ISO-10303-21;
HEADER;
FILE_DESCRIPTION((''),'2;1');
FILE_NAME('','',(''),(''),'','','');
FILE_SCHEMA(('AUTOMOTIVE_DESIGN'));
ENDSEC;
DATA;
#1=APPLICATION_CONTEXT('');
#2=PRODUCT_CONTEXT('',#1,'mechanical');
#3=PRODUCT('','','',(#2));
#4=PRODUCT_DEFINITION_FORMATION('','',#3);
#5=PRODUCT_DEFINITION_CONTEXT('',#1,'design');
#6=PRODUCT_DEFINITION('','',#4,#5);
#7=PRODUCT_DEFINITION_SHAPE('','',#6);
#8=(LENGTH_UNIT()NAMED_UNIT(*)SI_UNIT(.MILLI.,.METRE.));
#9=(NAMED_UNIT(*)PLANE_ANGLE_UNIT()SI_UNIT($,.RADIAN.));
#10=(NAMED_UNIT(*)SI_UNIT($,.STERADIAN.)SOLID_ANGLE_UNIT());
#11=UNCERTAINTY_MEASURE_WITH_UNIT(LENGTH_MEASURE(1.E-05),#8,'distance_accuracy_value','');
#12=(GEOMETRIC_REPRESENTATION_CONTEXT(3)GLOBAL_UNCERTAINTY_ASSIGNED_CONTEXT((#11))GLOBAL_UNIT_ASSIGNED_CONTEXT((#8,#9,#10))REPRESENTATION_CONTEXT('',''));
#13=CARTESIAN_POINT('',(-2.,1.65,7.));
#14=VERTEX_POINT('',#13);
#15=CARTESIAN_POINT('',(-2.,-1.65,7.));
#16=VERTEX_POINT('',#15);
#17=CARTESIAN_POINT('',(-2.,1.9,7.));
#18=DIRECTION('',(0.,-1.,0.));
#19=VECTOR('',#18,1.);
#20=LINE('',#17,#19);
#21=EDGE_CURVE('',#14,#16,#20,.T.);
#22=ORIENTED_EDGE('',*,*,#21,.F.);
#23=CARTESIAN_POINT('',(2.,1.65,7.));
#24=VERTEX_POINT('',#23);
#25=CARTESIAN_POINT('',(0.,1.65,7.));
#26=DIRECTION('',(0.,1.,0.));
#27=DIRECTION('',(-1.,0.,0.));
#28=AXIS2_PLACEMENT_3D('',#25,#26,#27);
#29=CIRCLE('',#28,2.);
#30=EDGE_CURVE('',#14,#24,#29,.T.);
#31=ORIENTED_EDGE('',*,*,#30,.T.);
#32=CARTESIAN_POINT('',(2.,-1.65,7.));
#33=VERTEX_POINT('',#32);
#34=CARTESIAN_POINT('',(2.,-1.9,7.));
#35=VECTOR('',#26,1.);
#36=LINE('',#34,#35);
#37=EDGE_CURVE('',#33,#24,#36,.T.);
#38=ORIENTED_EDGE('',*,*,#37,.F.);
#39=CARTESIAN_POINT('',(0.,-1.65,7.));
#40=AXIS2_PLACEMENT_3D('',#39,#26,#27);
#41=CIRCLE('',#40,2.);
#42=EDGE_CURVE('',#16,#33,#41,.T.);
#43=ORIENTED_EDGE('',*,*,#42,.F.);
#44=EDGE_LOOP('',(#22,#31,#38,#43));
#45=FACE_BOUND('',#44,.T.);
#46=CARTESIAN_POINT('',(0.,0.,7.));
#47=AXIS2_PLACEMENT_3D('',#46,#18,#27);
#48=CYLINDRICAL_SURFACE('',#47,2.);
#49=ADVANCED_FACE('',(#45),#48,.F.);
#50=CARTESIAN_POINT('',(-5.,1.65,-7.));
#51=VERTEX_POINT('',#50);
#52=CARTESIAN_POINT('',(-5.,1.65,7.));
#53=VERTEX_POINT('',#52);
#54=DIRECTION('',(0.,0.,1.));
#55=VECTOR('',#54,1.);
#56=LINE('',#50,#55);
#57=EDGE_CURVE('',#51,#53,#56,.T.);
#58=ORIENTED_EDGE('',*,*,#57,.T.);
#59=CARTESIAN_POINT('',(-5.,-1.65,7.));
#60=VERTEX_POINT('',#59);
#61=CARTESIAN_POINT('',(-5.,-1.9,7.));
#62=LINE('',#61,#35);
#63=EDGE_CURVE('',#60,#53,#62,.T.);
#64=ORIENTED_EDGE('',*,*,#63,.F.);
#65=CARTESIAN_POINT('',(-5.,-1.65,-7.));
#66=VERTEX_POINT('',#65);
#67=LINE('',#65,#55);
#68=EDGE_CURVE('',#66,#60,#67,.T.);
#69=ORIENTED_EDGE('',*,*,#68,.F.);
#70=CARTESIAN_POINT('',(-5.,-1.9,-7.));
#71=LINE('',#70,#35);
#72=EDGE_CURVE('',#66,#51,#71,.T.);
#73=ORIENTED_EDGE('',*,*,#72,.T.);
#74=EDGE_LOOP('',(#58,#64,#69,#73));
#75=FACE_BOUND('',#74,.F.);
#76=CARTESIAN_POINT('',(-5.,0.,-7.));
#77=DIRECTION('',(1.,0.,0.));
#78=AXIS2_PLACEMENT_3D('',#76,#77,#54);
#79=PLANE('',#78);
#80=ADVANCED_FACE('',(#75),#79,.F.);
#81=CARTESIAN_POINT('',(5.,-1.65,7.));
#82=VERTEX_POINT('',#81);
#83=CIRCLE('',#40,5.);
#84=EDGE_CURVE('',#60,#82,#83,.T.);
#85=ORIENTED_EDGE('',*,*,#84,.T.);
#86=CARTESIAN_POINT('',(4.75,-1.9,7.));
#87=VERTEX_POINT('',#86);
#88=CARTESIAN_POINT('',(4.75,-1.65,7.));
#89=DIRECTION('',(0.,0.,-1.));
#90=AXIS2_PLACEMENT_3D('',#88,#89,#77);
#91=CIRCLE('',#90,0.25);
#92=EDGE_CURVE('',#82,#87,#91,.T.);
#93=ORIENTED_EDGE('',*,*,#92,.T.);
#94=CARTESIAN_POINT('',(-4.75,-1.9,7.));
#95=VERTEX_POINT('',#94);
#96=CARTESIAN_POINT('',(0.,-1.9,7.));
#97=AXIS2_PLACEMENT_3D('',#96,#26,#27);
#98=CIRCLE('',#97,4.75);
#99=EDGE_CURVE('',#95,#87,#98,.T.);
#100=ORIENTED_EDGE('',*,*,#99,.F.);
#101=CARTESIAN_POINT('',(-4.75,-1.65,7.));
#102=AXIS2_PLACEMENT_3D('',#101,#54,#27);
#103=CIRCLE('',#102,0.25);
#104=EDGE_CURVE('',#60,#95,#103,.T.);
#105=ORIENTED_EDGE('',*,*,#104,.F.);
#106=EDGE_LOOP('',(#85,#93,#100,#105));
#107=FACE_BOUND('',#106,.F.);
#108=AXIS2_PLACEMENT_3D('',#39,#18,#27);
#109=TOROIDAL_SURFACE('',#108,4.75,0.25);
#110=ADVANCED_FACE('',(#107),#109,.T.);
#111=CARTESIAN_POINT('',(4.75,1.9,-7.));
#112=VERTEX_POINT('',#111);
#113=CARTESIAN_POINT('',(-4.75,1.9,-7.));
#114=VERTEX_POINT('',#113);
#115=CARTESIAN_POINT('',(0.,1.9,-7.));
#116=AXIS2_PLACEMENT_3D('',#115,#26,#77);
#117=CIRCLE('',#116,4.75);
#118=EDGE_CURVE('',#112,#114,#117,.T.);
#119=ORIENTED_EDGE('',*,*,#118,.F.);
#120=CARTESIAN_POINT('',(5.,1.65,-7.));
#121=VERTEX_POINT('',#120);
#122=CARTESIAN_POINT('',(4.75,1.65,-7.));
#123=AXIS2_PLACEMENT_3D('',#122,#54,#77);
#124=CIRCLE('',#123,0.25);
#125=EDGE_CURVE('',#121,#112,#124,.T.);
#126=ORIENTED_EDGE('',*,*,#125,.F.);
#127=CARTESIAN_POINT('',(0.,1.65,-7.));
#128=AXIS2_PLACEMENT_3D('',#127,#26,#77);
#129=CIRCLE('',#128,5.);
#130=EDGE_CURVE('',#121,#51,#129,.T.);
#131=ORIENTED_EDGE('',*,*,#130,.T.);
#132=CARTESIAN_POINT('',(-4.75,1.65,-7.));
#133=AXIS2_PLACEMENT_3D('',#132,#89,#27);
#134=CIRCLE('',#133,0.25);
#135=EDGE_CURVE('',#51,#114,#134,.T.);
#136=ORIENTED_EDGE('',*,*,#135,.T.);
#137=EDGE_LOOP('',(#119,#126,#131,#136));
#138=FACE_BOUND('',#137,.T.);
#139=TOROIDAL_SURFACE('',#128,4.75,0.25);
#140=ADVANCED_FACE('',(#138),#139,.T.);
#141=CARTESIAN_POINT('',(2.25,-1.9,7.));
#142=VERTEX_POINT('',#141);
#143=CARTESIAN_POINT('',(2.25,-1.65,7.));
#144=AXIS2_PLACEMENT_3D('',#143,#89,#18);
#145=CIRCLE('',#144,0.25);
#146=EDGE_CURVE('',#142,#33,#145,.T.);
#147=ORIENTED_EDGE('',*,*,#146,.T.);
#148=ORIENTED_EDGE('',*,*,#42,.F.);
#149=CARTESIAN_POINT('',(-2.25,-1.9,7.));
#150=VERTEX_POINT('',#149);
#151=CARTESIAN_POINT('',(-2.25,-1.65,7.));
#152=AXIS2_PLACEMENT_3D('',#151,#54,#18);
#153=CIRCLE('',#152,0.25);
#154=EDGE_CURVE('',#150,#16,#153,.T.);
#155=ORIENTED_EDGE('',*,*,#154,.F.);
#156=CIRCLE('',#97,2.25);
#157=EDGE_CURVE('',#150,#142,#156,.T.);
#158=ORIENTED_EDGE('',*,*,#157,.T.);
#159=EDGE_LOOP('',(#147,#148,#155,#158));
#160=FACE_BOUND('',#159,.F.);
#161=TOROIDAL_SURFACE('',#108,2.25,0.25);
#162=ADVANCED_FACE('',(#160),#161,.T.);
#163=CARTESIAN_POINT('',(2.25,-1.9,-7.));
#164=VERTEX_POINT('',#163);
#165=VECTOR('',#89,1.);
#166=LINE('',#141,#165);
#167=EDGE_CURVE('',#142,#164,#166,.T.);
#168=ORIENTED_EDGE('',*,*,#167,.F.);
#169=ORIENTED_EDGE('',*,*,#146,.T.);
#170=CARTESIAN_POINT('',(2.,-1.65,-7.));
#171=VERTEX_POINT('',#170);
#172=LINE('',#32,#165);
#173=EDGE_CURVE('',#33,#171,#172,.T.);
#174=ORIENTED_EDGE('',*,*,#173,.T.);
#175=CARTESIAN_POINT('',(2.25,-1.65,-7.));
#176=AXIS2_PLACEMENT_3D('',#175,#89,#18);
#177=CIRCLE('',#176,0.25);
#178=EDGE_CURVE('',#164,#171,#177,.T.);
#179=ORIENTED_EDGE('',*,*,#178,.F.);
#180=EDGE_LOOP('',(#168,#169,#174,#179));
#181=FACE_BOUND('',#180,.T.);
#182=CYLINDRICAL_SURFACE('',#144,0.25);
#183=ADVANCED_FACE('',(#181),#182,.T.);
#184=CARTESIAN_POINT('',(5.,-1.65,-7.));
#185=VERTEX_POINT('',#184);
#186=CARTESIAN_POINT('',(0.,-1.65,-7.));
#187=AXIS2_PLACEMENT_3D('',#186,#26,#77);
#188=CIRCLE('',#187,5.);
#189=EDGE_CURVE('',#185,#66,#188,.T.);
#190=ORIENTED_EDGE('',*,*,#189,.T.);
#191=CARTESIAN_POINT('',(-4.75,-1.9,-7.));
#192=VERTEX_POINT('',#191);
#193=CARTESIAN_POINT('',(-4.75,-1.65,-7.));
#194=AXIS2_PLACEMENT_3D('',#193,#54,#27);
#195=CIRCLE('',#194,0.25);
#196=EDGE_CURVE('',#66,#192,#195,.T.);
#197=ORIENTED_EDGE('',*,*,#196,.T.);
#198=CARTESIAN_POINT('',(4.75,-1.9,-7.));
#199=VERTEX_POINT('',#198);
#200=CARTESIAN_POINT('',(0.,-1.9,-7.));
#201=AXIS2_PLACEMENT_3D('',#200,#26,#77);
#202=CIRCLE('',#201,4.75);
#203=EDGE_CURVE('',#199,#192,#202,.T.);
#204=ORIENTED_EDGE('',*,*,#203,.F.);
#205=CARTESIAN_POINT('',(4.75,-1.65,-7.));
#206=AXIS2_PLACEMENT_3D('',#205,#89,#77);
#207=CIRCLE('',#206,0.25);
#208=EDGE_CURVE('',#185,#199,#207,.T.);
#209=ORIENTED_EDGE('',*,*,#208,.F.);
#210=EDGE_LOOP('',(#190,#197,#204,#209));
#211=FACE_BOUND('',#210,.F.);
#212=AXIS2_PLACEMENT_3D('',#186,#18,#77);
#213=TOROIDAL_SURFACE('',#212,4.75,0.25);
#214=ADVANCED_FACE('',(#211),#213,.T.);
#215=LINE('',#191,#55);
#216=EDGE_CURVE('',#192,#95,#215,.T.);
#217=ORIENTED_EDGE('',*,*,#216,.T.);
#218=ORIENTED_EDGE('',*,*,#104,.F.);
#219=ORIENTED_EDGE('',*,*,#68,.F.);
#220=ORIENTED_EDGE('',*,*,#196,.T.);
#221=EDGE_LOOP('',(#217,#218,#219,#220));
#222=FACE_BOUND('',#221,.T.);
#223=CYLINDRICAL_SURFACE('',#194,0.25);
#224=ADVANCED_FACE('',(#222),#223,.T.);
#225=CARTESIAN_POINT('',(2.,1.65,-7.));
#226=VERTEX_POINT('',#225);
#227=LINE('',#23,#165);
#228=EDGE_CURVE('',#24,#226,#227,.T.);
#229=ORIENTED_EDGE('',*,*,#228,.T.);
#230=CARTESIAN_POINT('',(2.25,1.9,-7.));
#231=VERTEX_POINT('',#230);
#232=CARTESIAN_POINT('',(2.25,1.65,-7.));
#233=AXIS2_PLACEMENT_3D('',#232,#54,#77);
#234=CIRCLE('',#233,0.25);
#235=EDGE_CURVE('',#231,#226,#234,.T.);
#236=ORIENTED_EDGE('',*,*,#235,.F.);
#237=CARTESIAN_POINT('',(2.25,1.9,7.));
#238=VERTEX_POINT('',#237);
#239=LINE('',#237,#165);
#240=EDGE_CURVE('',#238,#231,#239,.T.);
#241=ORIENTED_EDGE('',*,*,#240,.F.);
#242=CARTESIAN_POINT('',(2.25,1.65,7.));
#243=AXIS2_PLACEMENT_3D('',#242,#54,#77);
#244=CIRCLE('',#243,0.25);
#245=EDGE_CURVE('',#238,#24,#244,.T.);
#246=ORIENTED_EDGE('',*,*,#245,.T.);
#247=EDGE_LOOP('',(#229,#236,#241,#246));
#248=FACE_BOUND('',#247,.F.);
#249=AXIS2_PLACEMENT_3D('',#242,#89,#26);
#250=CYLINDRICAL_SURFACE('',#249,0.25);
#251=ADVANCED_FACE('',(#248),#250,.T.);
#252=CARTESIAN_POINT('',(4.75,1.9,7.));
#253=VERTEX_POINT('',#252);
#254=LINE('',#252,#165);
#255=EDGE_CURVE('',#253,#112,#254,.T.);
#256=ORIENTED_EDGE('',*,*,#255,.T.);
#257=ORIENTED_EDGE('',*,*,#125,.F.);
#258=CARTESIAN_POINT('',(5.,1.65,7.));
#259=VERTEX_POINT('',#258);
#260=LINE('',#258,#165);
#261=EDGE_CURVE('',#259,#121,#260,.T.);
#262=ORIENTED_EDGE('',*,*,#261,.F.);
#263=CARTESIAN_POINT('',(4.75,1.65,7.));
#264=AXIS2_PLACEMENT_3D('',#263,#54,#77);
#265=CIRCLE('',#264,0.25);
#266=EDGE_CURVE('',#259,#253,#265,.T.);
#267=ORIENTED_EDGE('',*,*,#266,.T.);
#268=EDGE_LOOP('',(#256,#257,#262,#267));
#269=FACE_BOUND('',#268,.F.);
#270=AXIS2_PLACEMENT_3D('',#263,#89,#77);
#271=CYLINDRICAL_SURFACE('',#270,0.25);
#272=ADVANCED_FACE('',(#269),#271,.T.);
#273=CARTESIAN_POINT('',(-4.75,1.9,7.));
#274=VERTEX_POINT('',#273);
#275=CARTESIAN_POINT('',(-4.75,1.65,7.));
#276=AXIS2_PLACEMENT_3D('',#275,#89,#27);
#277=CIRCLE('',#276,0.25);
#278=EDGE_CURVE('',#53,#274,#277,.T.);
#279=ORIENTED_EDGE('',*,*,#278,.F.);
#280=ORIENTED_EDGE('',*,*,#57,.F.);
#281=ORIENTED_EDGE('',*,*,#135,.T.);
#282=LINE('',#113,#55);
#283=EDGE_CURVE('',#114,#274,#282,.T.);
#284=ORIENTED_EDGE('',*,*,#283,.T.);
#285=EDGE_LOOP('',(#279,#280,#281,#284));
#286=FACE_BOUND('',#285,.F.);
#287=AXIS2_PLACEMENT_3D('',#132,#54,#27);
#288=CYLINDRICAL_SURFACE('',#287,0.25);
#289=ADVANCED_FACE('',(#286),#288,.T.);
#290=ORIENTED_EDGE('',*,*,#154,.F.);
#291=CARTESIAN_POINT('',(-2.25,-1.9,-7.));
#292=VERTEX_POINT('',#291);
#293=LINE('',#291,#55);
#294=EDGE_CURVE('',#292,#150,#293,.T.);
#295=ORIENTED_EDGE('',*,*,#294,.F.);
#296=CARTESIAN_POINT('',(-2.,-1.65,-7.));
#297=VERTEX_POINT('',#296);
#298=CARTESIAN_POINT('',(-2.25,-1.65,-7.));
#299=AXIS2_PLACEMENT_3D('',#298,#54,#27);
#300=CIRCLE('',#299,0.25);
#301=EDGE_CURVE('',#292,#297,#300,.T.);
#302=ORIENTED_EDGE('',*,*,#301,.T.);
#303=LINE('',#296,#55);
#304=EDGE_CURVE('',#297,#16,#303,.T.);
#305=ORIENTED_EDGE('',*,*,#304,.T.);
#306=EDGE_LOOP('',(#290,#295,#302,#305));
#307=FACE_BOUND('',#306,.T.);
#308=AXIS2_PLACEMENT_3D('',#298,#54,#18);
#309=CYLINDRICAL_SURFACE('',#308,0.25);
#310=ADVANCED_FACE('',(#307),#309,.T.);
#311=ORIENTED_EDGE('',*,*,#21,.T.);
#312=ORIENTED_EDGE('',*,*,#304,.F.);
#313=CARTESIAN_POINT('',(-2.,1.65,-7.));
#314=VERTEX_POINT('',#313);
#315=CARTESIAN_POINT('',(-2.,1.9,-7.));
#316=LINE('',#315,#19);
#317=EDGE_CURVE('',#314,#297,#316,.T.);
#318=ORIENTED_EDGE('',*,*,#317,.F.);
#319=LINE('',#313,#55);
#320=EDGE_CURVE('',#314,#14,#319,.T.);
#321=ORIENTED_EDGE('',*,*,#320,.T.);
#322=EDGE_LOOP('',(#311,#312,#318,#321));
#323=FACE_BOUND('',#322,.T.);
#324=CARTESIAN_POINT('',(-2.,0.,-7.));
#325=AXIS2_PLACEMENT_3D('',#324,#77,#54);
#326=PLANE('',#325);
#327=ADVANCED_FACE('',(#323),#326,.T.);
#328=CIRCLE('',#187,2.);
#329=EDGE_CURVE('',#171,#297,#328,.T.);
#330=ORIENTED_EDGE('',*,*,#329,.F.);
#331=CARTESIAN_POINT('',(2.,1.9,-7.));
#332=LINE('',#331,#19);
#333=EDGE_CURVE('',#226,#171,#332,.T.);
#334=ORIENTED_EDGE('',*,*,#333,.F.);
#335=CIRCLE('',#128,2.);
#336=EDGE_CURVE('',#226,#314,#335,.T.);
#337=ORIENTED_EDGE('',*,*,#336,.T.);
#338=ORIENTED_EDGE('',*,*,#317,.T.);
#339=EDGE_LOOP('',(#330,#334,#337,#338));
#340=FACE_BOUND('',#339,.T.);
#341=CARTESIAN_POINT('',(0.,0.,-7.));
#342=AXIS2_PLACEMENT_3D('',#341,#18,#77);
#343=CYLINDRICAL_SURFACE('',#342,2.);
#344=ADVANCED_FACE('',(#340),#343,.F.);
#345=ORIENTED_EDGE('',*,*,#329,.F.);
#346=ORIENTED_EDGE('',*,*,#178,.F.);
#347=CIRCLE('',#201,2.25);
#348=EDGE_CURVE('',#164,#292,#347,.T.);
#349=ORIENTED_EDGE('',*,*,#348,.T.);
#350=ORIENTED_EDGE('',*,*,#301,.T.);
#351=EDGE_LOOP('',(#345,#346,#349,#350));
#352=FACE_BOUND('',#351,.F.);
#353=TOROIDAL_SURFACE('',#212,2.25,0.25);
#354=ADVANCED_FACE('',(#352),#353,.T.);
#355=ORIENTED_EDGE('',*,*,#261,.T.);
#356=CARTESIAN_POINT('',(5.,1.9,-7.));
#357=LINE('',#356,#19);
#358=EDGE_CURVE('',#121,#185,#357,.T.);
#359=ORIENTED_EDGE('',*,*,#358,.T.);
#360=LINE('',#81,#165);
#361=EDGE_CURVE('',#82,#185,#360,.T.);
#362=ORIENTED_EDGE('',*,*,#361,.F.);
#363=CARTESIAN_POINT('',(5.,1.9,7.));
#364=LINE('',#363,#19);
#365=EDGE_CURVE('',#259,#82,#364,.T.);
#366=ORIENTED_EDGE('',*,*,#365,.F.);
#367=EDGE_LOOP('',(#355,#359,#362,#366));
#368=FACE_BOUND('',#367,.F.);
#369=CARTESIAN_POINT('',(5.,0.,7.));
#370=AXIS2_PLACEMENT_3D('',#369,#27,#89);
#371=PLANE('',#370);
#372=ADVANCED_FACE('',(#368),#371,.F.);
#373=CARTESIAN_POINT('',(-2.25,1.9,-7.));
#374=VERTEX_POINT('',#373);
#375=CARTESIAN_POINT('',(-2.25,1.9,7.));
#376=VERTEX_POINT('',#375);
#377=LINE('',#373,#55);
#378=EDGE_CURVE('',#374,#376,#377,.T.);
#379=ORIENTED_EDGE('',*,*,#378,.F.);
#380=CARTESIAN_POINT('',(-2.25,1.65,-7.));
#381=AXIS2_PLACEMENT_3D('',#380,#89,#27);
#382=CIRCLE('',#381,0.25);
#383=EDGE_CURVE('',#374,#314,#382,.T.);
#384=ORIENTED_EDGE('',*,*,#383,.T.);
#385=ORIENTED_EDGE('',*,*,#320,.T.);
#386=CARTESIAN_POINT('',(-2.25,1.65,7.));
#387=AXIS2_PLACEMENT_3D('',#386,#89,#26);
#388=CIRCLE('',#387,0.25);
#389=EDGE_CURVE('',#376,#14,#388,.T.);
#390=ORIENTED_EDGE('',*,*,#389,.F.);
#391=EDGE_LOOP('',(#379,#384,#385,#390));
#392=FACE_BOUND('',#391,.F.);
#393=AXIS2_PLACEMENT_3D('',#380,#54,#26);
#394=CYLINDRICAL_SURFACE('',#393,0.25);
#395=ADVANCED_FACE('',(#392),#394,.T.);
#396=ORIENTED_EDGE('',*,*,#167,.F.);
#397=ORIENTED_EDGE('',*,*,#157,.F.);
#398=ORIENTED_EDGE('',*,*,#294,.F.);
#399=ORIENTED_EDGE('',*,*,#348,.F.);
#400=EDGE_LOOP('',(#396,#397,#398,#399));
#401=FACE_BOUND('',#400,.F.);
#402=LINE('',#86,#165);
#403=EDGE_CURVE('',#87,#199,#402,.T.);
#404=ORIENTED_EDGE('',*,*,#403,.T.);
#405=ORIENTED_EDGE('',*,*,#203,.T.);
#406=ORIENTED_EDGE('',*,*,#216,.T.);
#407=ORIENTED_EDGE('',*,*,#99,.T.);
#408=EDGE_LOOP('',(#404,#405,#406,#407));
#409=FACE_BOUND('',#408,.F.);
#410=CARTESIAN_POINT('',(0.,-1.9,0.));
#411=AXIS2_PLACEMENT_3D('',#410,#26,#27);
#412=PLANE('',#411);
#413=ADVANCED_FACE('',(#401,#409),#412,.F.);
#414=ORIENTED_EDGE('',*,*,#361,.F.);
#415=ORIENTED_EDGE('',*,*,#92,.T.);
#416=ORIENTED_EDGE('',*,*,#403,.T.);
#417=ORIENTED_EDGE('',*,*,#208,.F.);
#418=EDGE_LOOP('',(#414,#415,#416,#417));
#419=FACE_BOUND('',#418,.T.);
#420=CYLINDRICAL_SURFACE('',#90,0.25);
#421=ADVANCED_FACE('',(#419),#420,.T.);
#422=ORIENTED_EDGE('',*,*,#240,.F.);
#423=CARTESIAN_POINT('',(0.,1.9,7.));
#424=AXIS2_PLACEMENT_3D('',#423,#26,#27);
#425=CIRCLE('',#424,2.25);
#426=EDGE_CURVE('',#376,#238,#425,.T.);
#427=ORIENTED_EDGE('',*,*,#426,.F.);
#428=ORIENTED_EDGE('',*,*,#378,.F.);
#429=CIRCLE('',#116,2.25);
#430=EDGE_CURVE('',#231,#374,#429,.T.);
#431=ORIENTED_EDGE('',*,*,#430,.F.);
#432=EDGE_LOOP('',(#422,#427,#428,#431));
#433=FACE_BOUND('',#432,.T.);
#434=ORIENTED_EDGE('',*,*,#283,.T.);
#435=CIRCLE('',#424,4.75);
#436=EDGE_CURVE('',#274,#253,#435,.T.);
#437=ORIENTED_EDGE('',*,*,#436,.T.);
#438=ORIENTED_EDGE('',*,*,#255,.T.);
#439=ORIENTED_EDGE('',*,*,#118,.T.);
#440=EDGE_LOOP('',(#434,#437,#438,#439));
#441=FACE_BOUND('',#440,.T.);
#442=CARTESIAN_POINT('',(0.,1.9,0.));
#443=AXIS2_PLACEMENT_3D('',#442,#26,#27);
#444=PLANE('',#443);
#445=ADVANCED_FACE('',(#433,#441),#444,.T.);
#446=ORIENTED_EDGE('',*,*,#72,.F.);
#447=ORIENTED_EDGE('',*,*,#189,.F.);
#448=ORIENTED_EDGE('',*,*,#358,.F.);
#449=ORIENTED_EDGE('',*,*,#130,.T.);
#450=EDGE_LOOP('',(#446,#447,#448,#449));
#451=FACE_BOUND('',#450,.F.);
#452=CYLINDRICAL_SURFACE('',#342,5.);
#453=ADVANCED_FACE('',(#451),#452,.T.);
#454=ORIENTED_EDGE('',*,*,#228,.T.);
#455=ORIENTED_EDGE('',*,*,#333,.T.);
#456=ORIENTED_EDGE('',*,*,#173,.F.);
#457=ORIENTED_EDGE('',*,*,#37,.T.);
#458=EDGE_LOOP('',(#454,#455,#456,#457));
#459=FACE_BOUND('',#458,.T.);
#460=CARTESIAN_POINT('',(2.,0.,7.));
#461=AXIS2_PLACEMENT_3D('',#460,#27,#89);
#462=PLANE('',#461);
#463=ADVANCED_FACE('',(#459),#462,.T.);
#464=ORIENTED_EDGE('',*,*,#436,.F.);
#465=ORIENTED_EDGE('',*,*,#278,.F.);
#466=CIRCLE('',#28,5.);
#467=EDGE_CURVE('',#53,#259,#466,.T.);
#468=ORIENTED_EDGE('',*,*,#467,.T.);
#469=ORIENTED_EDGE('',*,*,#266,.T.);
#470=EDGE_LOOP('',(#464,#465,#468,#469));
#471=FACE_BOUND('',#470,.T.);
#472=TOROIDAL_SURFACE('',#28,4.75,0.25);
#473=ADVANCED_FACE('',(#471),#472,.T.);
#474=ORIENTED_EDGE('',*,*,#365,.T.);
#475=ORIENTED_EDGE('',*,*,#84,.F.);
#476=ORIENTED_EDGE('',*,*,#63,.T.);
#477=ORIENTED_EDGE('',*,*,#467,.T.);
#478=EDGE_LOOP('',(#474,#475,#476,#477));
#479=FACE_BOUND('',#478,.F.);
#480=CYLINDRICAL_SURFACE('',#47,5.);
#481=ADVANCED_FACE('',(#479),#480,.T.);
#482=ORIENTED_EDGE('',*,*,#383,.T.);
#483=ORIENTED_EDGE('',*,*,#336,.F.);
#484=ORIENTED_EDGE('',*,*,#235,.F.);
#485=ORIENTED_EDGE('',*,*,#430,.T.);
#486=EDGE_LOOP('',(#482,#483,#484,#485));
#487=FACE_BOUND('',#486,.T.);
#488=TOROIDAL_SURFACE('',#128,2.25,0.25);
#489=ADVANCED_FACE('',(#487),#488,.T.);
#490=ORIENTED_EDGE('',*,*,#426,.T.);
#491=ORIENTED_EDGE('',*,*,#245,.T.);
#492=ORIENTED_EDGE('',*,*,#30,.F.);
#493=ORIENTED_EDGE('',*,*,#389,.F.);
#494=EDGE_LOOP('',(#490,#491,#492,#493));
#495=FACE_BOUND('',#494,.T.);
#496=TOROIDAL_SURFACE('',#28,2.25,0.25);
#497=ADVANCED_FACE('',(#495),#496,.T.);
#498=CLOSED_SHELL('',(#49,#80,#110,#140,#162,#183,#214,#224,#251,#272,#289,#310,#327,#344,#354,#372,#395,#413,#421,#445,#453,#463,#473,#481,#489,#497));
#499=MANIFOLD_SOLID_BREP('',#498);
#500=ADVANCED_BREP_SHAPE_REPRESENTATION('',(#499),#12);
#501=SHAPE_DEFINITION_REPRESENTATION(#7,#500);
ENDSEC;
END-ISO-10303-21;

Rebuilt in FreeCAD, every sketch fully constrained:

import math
import FreeCAD as App
import Part
import Sketcher

V = App.Vector
Q = App.Units.Quantity


def edges_at(feature, points):
    """Names of the edges that pass closest to the given points."""
    edges = feature.Shape.Edges
    near = lambda p: min(range(len(edges)), key=lambda i: edges[i].distToShape(Part.Vertex(*p))[0])
    return sorted({f"Edge{near(p) + 1}" for p in points})

doc = App.newDocument("Part")
body = doc.addObject("PartDesign::Body", "Body")

# Sketch on XZ plane
sketch1 = body.newObject("Sketcher::SketchObject", "Sketch")
sketch1.AttachmentSupport = (doc.getObject("XZ_Plane"), [""])
sketch1.MapMode = "FlatFace"
sketch1.addGeometry([
    Part.ArcOfCircle(Part.Circle(V(0, -7, 0), V(0, 0, 1), 5), math.radians(180), math.radians(360)),  # 0
    Part.LineSegment(V(-5, -7, 0), V(-5, 7, 0)),  # 1
    Part.ArcOfCircle(Part.Circle(V(0, 7, 0), V(0, 0, 1), 5), math.radians(0), math.radians(180)),  # 2
    Part.LineSegment(V(5, 7, 0), V(5, -7, 0)),  # 3
    Part.LineSegment(V(2, -7, 0), V(2, 7, 0)),  # 4
    Part.ArcOfCircle(Part.Circle(V(0, 7, 0), V(0, 0, 1), 2), math.radians(0), math.radians(180)),  # 5
    Part.LineSegment(V(-2, 7, 0), V(-2, -7, 0)),  # 6
    Part.ArcOfCircle(Part.Circle(V(0, -7, 0), V(0, 0, 1), 2), math.radians(180), math.radians(360)),  # 7
], False)
sketch1.addConstraint([
    Sketcher.Constraint("Tangent", 0, 1, 1, 1),
    Sketcher.Constraint("Tangent", 1, 2, 2, 2),
    Sketcher.Constraint("Tangent", 2, 1, 3, 1),
    Sketcher.Constraint("Tangent", 3, 2, 0, 2),
    Sketcher.Constraint("Tangent", 4, 2, 5, 1),
    Sketcher.Constraint("Tangent", 5, 2, 6, 1),
    Sketcher.Constraint("Tangent", 6, 2, 7, 1),
    Sketcher.Constraint("Tangent", 7, 2, 4, 1),
    Sketcher.Constraint("Vertical", 1),
    Sketcher.Constraint("Vertical", 3),
    Sketcher.Constraint("Vertical", 4),
    Sketcher.Constraint("Vertical", 6),
    Sketcher.Constraint("Coincident", 5, 3, 2, 3),
    Sketcher.Constraint("Symmetric", 0, 3, 2, 3, -1, 1),
    Sketcher.Constraint("Horizontal", 7, 3, 0, 1),
    Sketcher.Constraint("Radius", 0, Q("5 mm")),
    Sketcher.Constraint("DistanceY", 1, 1, 1, 2, Q("14 mm")),
    Sketcher.Constraint("Radius", 5, Q("2 mm")),
])
pad1 = body.newObject("PartDesign::Pad", "Pad")
pad1.Profile = sketch1
pad1.Length = 3.8
pad1.Midplane = True
doc.recompute()

fillet = body.newObject("PartDesign::Fillet", "Fillet")
fillet.Base = (pad1, edges_at(pad1, [
    (-5, -1.9, 0),
    (0, -1.9, -12),
    (5, -1.9, 0),
    (0, -1.9, 12),
    (2, -1.9, 0),
    (0, -1.9, -9),
    (-2, -1.9, 0),
    (0, -1.9, 9),
    (5, 1.9, 0),
    (0, 1.9, -12),
    (-5, 1.9, 0),
    (0, 1.9, 12),
    (0, 1.9, -9),
    (2, 1.9, 0),
    (0, 1.9, 9),
    (-2, 1.9, 0),
]))
fillet.Radius = 0.25

doc.recompute()
